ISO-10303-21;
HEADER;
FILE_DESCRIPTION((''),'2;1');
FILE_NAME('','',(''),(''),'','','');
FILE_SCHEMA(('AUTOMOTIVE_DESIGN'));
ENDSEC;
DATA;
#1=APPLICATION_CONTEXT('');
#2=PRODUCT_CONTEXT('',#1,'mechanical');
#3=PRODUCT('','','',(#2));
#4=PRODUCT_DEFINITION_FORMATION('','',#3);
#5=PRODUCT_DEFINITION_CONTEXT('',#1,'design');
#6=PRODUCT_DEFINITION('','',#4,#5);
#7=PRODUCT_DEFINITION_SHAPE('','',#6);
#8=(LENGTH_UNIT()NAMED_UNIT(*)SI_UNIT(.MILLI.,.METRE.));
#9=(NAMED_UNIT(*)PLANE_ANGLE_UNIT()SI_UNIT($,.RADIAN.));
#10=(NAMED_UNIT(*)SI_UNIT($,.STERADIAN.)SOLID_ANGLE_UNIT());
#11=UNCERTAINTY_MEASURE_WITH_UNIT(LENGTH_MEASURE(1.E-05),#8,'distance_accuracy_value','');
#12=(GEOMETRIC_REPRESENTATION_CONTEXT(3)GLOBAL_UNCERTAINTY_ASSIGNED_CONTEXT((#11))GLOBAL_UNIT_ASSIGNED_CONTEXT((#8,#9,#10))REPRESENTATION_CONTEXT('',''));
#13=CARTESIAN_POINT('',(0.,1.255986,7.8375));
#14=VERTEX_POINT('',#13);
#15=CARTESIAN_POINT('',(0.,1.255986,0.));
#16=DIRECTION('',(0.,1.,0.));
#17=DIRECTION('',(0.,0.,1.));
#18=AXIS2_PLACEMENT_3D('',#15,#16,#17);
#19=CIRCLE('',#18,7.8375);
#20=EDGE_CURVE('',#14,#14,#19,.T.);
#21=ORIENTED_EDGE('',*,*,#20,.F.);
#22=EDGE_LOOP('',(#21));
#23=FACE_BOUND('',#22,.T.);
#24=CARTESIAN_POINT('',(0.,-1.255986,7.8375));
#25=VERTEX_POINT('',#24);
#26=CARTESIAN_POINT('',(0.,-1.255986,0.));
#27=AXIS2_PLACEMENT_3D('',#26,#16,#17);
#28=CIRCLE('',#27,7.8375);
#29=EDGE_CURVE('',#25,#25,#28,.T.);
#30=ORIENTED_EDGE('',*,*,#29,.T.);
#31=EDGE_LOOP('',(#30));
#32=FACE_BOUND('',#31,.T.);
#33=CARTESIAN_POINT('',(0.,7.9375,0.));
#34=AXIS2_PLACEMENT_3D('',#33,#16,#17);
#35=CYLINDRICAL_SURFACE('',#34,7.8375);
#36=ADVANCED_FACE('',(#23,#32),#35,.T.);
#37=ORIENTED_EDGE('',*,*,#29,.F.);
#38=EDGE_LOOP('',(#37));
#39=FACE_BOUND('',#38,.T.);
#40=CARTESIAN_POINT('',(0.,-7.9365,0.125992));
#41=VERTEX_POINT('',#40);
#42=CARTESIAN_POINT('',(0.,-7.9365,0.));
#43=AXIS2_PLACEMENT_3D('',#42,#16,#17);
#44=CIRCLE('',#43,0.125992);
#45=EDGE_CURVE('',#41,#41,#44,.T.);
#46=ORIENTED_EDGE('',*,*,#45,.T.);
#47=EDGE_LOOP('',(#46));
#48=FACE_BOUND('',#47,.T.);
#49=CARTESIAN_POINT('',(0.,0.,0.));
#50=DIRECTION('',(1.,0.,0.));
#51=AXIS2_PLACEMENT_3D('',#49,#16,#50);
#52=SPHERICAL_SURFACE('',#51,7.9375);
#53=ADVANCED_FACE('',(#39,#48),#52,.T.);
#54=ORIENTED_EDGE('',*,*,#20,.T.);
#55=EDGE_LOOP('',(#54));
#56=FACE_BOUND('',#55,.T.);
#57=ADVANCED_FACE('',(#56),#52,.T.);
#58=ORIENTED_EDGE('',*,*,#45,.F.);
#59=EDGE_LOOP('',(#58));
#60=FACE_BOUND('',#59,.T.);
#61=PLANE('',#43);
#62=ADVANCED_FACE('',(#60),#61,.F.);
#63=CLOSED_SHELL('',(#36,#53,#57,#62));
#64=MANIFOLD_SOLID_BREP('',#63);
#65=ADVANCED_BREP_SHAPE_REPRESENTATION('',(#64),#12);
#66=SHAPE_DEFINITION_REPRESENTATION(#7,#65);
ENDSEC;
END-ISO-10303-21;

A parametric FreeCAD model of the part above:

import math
import FreeCAD as App
import Part
import Sketcher

V = App.Vector
Q = App.Units.Quantity

doc = App.newDocument("Part")
body = doc.addObject("PartDesign::Body", "Body")

# Sketch on XY plane
sketch1 = doc.addObject("Sketcher::SketchObject", "Sketch")
body.addObject(sketch1)
sketch1.AttachmentSupport = (doc.XY_Plane, [""])
sketch1.MapMode = "FlatFace"
sketch1.addGeometry([
    Part.ArcOfCircle(Part.Circle(V(0, 0, 0), V(0, 0, 1), 7.94), math.radians(9), math.radians(90)),  # 0
    Part.LineSegment(V(0, 7.94, 0), V(0, -7.94, 0)),  # 1
    Part.LineSegment(V(0, -7.94, 0), V(0.13, -7.94, 0)),  # 2
    Part.ArcOfCircle(Part.Circle(V(0, 0, 0), V(0, 0, 1), 7.94), math.radians(-89), math.radians(-9)),  # 3
    Part.LineSegment(V(7.84, -1.26, 0), V(7.84, 1.26, 0)),  # 4
], False)
sketch1.addConstraint([
    Sketcher.Constraint("Coincident", 0, 2, 1, 1),
    Sketcher.Constraint("Coincident", 1, 2, 2, 1),
    Sketcher.Constraint("Coincident", 2, 2, 3, 1),
    Sketcher.Constraint("Coincident", 3, 2, 4, 1),
    Sketcher.Constraint("Coincident", 4, 2, 0, 1),
    Sketcher.Constraint("Vertical", 1),
    Sketcher.Constraint("Horizontal", 2),
    Sketcher.Constraint("Vertical", 4),
    Sketcher.Constraint("Coincident", 0, 3, -1, 1),
    Sketcher.Constraint("Coincident", 3, 3, -1, 1),
    Sketcher.Constraint("Equal", 0, 3),
    Sketcher.Constraint("PointOnObject", 0, 2, -2),
    Sketcher.Constraint("Radius", 0, Q("0.3125 in")),
    Sketcher.Constraint("DistanceY", 1, 2, 1, 1, Q("15.874 mm")),
    Sketcher.Constraint("DistanceY", 4, 1, 4, 2, Q("2.511971 mm")),
])
revolution = doc.addObject("PartDesign::Revolution", "Revolution")
body.addObject(revolution)
revolution.Profile = sketch1
revolution.ReferenceAxis = (sketch1, ["V_Axis"])
revolution.Angle = 360

doc.recompute()
